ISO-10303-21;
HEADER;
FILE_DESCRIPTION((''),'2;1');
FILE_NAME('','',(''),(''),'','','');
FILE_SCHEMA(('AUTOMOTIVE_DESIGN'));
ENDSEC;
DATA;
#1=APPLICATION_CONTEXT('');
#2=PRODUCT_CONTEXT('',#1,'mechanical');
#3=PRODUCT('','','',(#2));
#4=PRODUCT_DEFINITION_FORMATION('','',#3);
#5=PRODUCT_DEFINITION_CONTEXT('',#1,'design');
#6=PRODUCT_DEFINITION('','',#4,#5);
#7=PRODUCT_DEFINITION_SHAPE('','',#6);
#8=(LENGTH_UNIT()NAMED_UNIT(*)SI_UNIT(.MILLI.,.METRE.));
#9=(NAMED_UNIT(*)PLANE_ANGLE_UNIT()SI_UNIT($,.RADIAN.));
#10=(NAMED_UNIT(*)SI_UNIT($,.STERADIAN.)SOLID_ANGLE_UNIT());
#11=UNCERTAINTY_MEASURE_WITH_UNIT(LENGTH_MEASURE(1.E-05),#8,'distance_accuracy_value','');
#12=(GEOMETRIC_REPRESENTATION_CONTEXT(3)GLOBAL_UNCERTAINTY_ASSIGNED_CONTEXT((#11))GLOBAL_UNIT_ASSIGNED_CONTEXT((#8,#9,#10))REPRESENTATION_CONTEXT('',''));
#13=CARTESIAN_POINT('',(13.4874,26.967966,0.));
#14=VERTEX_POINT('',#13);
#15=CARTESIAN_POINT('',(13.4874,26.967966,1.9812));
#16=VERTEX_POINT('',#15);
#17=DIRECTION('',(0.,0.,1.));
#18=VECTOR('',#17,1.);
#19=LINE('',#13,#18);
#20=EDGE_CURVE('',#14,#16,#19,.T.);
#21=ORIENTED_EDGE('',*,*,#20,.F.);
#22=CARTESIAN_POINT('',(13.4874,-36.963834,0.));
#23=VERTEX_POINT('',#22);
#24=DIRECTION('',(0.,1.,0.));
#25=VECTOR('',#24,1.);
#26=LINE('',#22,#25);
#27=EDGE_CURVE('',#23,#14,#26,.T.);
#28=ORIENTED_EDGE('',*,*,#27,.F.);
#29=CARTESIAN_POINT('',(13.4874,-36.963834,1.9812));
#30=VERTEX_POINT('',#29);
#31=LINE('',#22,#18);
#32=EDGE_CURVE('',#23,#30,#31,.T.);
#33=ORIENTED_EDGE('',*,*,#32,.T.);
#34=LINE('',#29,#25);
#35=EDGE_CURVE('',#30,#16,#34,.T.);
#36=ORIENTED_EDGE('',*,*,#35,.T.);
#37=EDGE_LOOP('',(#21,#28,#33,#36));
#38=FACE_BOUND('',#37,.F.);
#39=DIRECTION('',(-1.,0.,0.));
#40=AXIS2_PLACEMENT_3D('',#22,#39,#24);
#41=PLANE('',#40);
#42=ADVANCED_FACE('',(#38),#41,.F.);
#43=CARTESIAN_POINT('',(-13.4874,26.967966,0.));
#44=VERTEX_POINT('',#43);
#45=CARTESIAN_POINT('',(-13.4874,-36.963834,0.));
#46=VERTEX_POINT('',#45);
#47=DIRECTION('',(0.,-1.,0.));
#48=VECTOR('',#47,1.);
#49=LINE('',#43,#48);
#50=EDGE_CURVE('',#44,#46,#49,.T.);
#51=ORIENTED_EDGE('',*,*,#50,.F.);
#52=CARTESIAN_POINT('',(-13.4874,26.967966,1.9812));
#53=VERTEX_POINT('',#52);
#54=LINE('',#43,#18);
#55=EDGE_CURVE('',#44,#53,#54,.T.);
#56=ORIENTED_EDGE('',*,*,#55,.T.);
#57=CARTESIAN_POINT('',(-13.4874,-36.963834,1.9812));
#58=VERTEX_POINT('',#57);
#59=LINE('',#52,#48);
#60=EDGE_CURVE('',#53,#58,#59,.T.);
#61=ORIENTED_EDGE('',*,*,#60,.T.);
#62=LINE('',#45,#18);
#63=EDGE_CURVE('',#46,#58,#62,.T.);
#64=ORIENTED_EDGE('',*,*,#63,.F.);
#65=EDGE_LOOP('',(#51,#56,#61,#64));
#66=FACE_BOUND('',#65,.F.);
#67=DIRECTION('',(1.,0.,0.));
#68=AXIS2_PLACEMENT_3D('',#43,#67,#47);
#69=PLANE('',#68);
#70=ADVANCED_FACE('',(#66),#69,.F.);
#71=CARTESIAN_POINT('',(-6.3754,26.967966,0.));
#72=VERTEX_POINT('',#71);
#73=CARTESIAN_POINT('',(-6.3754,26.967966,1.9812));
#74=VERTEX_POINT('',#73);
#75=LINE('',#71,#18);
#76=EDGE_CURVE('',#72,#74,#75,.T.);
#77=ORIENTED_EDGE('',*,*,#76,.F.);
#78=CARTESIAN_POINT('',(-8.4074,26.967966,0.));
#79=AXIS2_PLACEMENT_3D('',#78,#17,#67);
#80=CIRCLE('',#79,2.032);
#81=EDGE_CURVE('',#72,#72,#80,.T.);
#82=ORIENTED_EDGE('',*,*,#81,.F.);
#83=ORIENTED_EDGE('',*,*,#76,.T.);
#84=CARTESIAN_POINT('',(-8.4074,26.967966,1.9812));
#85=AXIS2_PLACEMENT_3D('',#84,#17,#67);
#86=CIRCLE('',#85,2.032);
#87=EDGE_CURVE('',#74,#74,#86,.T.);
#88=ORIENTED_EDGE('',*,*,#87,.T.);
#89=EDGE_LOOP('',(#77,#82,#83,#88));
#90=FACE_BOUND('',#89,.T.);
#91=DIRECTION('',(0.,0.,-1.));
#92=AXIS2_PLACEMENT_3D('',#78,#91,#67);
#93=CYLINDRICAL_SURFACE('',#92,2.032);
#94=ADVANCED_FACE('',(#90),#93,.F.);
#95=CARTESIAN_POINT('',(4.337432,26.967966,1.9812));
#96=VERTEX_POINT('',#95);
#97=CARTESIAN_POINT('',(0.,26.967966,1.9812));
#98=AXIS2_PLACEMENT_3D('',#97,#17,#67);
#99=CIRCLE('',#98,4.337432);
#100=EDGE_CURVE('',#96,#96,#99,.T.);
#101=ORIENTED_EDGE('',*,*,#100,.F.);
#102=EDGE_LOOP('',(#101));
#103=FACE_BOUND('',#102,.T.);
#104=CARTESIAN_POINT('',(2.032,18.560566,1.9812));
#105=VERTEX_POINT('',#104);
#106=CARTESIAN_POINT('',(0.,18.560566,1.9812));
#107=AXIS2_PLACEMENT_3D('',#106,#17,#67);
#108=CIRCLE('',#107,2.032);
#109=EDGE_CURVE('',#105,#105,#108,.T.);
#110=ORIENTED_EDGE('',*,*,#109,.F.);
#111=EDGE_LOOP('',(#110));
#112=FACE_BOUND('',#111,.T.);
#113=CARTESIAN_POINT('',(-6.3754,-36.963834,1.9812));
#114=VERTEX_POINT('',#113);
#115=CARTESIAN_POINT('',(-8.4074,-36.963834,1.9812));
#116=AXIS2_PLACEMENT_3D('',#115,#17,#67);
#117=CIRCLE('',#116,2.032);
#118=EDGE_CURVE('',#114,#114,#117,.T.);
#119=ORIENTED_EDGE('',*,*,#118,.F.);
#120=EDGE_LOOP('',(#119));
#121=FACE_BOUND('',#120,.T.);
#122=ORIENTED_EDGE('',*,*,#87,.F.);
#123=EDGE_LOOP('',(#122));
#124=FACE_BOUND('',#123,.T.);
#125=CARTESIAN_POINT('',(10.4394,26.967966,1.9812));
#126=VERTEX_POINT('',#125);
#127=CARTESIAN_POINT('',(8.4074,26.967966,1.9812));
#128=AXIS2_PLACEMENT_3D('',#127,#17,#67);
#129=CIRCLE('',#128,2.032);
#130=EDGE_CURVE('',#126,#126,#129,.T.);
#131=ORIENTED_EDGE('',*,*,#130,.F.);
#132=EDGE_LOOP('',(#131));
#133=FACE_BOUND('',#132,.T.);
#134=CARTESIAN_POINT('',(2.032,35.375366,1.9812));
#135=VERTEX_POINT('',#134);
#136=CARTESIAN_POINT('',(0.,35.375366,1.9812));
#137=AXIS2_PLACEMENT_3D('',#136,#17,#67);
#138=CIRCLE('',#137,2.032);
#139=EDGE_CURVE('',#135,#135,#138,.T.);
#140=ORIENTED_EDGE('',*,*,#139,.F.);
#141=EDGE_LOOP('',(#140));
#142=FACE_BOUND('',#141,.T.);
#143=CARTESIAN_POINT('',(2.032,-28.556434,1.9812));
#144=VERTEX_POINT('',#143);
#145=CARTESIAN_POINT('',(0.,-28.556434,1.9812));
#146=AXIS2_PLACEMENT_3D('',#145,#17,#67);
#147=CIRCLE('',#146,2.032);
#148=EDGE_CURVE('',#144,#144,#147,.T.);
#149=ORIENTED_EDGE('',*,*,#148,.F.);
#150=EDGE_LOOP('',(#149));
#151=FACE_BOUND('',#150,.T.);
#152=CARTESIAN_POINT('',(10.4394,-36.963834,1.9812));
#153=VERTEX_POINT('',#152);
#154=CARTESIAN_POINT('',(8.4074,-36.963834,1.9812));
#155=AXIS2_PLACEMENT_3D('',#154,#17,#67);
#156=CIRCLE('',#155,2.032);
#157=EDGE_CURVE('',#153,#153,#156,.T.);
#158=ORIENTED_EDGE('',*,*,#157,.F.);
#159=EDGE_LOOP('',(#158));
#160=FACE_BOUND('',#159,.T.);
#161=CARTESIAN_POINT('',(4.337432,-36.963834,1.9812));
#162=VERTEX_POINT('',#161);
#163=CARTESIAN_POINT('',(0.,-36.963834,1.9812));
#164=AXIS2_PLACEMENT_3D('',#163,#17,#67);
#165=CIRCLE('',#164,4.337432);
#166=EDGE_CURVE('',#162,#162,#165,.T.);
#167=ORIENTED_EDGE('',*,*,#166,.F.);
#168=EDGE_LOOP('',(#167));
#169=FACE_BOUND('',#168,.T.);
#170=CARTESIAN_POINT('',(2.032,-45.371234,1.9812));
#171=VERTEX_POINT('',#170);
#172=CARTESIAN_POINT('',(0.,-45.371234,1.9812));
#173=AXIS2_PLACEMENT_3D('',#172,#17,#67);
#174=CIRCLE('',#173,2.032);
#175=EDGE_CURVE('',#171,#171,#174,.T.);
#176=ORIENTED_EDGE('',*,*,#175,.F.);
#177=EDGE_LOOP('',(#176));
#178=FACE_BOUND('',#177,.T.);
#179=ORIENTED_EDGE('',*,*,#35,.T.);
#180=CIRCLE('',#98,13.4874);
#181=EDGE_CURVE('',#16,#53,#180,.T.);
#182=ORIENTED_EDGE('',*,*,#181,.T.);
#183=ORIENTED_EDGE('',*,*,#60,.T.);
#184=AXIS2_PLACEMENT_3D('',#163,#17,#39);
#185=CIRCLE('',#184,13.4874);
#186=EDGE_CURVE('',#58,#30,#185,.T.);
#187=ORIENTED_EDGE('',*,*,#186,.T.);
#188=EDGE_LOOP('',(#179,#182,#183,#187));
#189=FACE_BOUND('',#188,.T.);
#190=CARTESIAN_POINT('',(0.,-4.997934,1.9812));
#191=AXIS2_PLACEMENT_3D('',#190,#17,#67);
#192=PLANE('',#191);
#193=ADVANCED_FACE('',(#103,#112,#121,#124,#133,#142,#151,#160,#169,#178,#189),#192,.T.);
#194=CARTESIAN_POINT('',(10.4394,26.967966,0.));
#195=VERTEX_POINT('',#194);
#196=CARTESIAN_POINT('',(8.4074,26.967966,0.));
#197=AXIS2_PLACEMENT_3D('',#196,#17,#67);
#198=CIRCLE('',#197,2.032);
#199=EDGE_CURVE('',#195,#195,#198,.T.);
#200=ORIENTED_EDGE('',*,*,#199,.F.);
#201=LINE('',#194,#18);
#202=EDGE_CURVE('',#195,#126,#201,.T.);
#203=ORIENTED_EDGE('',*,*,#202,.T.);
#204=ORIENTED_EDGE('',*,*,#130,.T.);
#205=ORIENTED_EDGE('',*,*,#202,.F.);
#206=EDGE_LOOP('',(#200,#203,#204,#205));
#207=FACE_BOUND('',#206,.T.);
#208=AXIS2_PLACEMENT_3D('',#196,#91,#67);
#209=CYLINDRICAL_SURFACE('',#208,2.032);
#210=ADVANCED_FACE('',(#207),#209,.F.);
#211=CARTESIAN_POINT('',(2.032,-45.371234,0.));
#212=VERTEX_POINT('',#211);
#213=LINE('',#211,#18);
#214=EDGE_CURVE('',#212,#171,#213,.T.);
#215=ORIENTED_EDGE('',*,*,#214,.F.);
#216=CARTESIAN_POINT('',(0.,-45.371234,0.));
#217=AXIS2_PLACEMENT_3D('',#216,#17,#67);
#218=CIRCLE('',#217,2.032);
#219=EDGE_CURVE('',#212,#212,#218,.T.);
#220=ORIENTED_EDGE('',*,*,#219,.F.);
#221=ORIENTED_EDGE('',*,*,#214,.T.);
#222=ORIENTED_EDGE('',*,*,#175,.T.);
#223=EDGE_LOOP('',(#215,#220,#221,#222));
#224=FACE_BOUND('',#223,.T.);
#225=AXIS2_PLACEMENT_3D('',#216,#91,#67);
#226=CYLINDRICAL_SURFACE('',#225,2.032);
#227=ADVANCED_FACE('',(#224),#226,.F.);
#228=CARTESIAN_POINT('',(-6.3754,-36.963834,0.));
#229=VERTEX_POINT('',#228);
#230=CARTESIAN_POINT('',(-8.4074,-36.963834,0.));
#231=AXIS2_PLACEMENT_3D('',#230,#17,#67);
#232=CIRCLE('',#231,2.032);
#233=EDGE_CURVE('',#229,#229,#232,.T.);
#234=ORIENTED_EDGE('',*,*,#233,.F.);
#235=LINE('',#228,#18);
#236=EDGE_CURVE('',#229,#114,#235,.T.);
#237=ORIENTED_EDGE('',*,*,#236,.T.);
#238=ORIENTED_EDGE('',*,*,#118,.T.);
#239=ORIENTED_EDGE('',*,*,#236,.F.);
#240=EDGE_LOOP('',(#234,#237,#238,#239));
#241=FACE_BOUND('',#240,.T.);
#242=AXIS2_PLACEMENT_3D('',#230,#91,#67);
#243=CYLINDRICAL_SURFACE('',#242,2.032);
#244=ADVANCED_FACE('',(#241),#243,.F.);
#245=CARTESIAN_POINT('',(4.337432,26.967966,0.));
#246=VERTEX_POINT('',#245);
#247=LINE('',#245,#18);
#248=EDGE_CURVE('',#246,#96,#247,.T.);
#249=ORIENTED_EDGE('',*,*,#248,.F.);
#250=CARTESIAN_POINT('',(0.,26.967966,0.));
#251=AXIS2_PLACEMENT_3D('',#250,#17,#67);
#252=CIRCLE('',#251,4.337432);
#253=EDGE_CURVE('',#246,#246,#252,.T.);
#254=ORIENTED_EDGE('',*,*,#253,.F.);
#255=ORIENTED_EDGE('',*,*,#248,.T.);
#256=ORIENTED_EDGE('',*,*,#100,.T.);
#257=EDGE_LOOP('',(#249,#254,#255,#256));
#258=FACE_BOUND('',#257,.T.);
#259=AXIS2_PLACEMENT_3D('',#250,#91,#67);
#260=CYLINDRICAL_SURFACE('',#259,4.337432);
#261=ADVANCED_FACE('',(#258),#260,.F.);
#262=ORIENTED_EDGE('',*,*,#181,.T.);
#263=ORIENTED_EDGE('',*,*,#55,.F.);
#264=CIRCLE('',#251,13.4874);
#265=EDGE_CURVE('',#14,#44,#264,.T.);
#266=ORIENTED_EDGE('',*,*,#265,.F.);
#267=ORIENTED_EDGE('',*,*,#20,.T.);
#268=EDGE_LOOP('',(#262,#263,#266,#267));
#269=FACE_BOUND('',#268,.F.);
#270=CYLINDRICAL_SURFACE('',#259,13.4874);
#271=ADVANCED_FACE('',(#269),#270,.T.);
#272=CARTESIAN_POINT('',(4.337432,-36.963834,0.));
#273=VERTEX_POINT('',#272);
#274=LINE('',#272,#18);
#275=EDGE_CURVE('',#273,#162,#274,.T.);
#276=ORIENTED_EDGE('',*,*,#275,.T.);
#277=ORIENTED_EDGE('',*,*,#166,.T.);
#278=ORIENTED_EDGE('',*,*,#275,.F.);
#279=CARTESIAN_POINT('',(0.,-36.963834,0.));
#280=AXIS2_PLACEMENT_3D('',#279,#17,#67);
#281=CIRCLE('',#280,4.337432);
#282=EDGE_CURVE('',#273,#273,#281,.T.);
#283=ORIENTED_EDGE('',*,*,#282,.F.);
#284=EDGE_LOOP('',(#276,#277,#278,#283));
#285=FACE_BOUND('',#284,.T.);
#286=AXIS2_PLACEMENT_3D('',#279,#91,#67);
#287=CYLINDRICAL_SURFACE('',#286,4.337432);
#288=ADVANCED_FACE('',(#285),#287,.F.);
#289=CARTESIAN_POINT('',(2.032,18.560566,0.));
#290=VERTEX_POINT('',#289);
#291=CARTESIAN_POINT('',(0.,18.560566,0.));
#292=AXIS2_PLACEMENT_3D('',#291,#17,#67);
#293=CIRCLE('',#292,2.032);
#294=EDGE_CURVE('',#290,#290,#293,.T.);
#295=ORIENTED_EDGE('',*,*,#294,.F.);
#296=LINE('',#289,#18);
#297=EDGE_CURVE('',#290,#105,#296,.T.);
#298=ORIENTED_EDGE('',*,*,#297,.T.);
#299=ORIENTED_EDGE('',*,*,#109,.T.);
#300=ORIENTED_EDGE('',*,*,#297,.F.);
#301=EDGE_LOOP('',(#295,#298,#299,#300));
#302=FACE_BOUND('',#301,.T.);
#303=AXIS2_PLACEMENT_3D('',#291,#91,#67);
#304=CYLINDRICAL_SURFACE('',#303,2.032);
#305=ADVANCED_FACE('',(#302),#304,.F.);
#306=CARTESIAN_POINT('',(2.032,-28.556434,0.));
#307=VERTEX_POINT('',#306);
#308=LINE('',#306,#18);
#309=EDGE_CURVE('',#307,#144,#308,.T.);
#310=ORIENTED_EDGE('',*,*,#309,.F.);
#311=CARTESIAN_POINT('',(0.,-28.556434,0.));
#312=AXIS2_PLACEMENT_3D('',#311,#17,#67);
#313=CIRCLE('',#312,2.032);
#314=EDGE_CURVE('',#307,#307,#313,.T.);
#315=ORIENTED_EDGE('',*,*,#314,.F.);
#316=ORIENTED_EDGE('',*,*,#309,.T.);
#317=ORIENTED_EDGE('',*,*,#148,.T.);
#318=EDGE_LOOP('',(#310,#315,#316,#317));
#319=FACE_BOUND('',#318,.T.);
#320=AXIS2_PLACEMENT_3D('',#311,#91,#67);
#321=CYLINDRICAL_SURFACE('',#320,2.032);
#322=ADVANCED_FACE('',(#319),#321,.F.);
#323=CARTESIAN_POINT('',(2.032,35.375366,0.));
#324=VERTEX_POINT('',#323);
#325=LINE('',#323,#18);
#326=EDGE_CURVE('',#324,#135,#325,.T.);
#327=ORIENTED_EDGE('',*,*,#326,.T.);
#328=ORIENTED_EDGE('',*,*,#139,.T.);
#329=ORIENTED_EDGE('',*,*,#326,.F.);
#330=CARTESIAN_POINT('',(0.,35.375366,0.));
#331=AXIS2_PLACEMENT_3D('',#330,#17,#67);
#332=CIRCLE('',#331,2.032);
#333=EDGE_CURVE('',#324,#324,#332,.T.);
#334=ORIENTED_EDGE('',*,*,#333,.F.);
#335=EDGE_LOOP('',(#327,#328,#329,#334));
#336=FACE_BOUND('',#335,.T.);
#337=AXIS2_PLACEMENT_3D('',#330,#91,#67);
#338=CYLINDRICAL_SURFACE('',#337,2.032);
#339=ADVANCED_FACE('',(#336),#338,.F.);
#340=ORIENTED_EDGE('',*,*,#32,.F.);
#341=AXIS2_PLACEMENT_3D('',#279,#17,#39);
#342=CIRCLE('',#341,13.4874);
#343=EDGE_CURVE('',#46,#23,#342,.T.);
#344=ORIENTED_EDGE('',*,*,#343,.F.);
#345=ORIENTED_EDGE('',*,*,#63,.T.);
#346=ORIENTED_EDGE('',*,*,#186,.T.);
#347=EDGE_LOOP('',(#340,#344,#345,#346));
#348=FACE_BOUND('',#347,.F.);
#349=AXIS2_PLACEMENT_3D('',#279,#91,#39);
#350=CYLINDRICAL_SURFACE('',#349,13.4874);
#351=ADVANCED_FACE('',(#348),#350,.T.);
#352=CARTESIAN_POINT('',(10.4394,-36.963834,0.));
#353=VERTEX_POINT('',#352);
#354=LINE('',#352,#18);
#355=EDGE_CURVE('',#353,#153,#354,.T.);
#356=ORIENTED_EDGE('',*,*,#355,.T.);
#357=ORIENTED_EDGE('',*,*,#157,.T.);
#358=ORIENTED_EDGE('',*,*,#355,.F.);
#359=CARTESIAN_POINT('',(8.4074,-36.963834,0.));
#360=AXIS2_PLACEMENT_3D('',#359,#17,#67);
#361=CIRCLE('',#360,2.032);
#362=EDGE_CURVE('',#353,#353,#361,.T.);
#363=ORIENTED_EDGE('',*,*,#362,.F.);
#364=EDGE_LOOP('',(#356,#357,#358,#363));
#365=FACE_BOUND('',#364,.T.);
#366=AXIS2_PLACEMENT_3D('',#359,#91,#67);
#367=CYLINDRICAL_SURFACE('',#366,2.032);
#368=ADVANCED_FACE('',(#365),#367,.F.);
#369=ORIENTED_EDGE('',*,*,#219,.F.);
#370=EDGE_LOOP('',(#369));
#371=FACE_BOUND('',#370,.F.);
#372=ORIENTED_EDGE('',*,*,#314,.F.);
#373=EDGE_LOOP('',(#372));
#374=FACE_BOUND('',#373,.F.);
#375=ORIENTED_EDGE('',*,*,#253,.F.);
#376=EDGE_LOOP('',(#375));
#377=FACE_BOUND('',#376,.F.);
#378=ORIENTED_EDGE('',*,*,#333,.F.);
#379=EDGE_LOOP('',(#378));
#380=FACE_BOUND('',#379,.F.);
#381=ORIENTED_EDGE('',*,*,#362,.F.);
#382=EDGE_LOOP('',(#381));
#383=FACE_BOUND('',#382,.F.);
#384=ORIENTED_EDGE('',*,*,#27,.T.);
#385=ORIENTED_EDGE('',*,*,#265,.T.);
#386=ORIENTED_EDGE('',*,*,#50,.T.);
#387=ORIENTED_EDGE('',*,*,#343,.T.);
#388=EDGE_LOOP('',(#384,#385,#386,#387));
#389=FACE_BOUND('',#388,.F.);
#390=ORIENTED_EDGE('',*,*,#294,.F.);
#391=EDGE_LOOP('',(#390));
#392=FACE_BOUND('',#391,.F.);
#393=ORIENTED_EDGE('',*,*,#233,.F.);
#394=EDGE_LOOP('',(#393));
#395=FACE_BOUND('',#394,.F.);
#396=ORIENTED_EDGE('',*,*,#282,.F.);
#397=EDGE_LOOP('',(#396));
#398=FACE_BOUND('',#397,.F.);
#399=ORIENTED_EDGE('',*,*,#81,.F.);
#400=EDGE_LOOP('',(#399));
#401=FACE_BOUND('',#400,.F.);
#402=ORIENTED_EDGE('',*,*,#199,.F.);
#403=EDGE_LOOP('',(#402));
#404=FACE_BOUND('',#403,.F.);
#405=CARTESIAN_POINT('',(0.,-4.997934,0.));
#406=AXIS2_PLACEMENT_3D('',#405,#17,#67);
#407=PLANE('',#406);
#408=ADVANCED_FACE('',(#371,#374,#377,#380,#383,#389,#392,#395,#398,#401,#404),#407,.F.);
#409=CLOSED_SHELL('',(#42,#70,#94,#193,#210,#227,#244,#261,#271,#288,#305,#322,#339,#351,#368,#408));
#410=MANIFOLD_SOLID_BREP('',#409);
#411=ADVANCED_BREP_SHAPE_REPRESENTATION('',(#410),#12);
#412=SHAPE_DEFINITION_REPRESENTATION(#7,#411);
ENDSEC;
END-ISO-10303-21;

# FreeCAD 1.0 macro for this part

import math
import FreeCAD as App
import Part
import Sketcher
from FreeCAD import Vector
Q = App.Units.Quantity

doc = App.newDocument("Part")
body = doc.addObject("PartDesign::Body", "Body")

# Sketch on XY plane
sketch1 = doc.addObject("Sketcher::SketchObject", "Sketch")
body.addObject(sketch1)
sketch1.AttachmentSupport = (doc.XY_Plane, [""])
sketch1.MapMode = "FlatFace"
sketch1.addGeometry([
    Part.LineSegment(Vector(13.5, -37, 0), Vector(13.5, 27, 0)),  # 0
    Part.ArcOfCircle(Part.Circle(Vector(0, 27, 0), Vector(0, 0, 1), 13.5), math.radians(0), math.radians(180)),  # 1
    Part.LineSegment(Vector(-13.5, 27, 0), Vector(-13.5, -37, 0)),  # 2
    Part.ArcOfCircle(Part.Circle(Vector(0, -37, 0), Vector(0, 0, 1), 13.5), math.radians(180), math.radians(360)),  # 3
    Part.Circle(Vector(-8.4, -37, 0), Vector(0, 0, 1), 2),  # 4
    Part.Circle(Vector(0, -45.4, 0), Vector(0, 0, 1), 2),  # 5
    Part.Circle(Vector(0, -37, 0), Vector(0, 0, 1), 4.3),  # 6
    Part.Circle(Vector(0, -28.6, 0), Vector(0, 0, 1), 2),  # 7
    Part.Circle(Vector(8.4, -37, 0), Vector(0, 0, 1), 2),  # 8
    Part.Circle(Vector(-8.4, 27, 0), Vector(0, 0, 1), 2),  # 9
    Part.Circle(Vector(0, 18.6, 0), Vector(0, 0, 1), 2),  # 10
    Part.Circle(Vector(0, 27, 0), Vector(0, 0, 1), 4.3),  # 11
    Part.Circle(Vector(0, 35.4, 0), Vector(0, 0, 1), 2),  # 12
    Part.Circle(Vector(8.4, 27, 0), Vector(0, 0, 1), 2),  # 13
], False)
sketch1.addConstraint([
    Sketcher.Constraint("Tangent", 0, 2, 1, 1),
    Sketcher.Constraint("Tangent", 1, 2, 2, 1),
    Sketcher.Constraint("Tangent", 2, 2, 3, 1),
    Sketcher.Constraint("Tangent", 3, 2, 0, 1),
    Sketcher.Constraint("Vertical", 0),
    Sketcher.Constraint("Vertical", 2),
    Sketcher.Constraint("Coincident", 6, 3, 3, 3),
    Sketcher.Constraint("Coincident", 11, 3, 1, 3),
    Sketcher.Constraint("Equal", 4, 5),
    Sketcher.Constraint("Equal", 5, 7),
    Sketcher.Constraint("Equal", 7, 8),
    Sketcher.Constraint("Equal", 8, 9),
    Sketcher.Constraint("Equal", 9, 10),
    Sketcher.Constraint("Equal", 6, 11),
    Sketcher.Constraint("Equal", 10, 12),
    Sketcher.Constraint("Equal", 12, 13),
    Sketcher.Constraint("Symmetric", 4, 3, 8, 3, -2),
    Sketcher.Constraint("Symmetric", 9, 3, 13, 3, -2),
    Sketcher.Constraint("PointOnObject", 1, 3, -2),
    Sketcher.Constraint("PointOnObject", 5, 3, -2),
    Sketcher.Constraint("PointOnObject", 7, 3, -2),
    Sketcher.Constraint("PointOnObject", 10, 3, -2),
    Sketcher.Constraint("PointOnObject", 12, 3, -2),
    Sketcher.Constraint("Horizontal", 3, 3, 4, 3),
    Sketcher.Constraint("Horizontal", 1, 3, 9, 3),
    Sketcher.Constraint("Vertical", 4, 3, 9, 3),
    Sketcher.Constraint("Diameter", 4, Q("0.16 in")),
    Sketcher.Constraint("Radius", 1, Q("0.531 in")),
    Sketcher.Constraint("DistanceX", 13, 3, 0, 2, Q("0.2 in")),
    Sketcher.Constraint("DistanceY", 0, 1, 0, 2, Q("2.517 in")),
    Sketcher.Constraint("DistanceY", 5, 3, 3, 3, Q("0.331 in")),
    Sketcher.Constraint("DistanceY", 3, 3, 7, 3, Q("0.331 in")),
    Sketcher.Constraint("DistanceY", 10, 3, 1, 3, Q("0.331 in")),
    Sketcher.Constraint("DistanceY", 1, 3, 12, 3, Q("0.331 in")),
    Sketcher.Constraint("Diameter", 6, Q("8.674864 mm")),
    Sketcher.Constraint("DistanceY", -1, 1, 1, 3, Q("26.967966 mm")),
])
pad1 = doc.addObject("PartDesign::Pad", "Pad")
body.addObject(pad1)
pad1.Profile = sketch1
pad1.Length = Q("0.078 in")

doc.recompute()
